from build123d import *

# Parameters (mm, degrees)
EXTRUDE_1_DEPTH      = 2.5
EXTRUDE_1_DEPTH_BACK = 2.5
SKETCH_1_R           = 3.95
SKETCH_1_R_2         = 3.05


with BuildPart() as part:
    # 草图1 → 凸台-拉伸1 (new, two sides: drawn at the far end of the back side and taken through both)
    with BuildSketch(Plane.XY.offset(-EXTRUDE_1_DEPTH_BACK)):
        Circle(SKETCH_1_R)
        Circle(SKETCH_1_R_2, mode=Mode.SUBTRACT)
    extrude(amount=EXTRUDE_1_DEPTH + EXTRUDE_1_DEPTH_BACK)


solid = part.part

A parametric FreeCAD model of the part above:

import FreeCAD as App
import Part
import Sketcher

V = App.Vector

doc = App.newDocument("Part")
body = doc.addObject("PartDesign::Body", "Body")

# Sketch on XY plane
sketch1 = body.newObject("Sketcher::SketchObject", "Sketch")
sketch1.AttachmentSupport = (doc.getObject("XY_Plane"), [""])
sketch1.MapMode = "FlatFace"
sketch1.addGeometry([
    Part.Circle(V(0, 0, 0), V(0, 0, 1), 4),
    Part.Circle(V(0, 0, 0), V(0, 0, 1), 3),
], False)
sketch1.addConstraint([
    Sketcher.Constraint("Coincident", 0, 3, -1, 1),
    Sketcher.Constraint("Coincident", 1, 3, -1, 1),
    Sketcher.Constraint("Diameter", 0, 7.9),
    Sketcher.Constraint("Diameter", 1, 6.1),
])
pad1 = body.newObject("PartDesign::Pad", "Pad")
pad1.Profile = sketch1
pad1.Type = "TwoLengths"
pad1.Length = 2.5
pad1.Length2 = 2.5

doc.recompute()
